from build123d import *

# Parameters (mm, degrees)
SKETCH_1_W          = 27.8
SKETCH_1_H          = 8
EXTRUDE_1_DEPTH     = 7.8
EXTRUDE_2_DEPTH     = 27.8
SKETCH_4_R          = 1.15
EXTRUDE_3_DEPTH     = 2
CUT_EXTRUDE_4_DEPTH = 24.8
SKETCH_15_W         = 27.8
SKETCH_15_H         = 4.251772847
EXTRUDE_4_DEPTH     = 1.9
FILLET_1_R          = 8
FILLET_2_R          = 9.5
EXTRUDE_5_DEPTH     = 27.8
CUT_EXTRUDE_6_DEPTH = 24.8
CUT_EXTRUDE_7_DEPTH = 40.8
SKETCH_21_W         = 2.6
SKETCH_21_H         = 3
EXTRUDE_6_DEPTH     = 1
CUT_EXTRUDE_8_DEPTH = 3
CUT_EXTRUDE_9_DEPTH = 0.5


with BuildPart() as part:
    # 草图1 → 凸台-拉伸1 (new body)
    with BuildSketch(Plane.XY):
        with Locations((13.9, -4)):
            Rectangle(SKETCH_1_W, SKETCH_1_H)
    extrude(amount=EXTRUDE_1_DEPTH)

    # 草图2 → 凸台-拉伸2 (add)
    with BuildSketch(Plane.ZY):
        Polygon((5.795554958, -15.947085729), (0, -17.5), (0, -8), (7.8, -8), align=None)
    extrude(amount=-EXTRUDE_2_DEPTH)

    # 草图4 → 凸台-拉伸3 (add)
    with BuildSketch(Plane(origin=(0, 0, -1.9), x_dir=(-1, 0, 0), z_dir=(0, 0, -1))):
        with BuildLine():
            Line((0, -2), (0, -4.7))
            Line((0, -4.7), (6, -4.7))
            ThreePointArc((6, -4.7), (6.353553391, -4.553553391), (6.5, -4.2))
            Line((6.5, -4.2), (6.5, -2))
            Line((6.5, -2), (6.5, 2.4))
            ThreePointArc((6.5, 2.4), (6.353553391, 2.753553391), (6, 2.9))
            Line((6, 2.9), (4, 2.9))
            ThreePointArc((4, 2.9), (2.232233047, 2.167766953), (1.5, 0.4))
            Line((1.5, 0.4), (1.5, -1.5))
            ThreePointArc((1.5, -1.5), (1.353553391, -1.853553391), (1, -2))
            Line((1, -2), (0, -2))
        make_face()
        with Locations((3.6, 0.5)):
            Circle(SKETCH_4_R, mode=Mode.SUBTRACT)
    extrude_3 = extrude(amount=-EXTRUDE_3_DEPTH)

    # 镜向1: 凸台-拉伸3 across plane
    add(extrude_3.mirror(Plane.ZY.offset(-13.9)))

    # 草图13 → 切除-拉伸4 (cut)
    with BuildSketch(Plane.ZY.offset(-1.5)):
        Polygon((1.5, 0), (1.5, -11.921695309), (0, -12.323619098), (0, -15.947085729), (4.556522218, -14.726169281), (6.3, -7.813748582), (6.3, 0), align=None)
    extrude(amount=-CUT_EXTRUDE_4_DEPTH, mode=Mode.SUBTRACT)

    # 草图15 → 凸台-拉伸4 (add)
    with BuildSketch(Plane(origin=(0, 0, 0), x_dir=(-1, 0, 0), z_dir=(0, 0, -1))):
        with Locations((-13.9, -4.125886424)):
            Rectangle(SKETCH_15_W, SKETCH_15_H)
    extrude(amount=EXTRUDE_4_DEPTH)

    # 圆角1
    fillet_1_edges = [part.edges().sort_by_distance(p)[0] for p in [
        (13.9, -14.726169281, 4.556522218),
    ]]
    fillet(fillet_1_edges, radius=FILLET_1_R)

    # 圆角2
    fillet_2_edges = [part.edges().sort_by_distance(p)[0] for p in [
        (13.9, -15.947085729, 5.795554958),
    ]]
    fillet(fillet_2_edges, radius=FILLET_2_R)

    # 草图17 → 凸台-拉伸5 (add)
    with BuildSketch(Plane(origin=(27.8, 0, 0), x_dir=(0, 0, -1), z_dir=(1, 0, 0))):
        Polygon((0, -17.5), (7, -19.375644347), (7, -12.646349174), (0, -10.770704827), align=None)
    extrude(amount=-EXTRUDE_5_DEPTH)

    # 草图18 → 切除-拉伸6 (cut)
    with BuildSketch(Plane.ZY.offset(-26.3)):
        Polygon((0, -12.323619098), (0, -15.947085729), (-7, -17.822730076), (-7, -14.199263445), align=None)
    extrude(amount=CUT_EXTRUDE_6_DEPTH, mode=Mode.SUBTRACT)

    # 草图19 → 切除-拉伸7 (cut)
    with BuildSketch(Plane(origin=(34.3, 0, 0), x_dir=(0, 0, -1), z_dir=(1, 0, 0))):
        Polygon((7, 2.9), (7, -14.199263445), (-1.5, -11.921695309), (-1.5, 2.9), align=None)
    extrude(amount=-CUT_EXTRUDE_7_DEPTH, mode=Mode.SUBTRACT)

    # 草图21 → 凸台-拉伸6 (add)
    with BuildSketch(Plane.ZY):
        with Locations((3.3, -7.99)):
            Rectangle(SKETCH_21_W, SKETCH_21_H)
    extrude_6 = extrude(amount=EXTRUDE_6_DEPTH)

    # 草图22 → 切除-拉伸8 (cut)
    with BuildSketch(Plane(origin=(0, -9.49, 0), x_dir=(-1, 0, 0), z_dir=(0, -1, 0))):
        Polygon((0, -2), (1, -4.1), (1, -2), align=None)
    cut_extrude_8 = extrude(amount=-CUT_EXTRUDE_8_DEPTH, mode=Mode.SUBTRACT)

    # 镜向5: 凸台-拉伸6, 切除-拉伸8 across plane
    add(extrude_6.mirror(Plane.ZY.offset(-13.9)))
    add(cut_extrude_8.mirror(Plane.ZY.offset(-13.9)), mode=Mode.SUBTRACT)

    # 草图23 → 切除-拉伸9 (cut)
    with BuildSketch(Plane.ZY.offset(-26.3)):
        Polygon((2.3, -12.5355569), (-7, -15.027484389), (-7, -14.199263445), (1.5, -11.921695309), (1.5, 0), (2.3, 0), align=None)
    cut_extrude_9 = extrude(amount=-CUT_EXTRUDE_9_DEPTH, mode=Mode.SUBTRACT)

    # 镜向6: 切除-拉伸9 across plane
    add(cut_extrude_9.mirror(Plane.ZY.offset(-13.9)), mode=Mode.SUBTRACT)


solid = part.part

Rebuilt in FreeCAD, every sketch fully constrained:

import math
import FreeCAD as App
import Part
import Sketcher
Q = App.Units.Quantity


def edges_at(feature, points):
    """Names of the edges that pass closest to the given points."""
    edges = feature.Shape.Edges
    near = lambda p: min(range(len(edges)), key=lambda i: edges[i].distToShape(Part.Vertex(*p))[0])
    return sorted({f"Edge{near(p) + 1}" for p in points})

doc = App.newDocument("Part")
body = doc.addObject("PartDesign::Body", "Body")

# Sketch on XY plane
sketch1 = body.newObject("Sketcher::SketchObject", "Sketch")
sketch1.AttachmentSupport = (doc.getObject("XY_Plane"), [""])
sketch1.MapMode = "FlatFace"
sketch1.addGeometry([
    Part.LineSegment(App.Vector(0, 0, 0), App.Vector(0, -8, 0)),
    Part.LineSegment(App.Vector(0, -8, 0), App.Vector(27.8, -8, 0)),
    Part.LineSegment(App.Vector(27.8, -8, 0), App.Vector(27.8, 0, 0)),
    Part.LineSegment(App.Vector(27.8, 0, 0), App.Vector(0, 0, 0)),
], False)
sketch1.addConstraint([
    Sketcher.Constraint("Coincident", 0, 2, 1, 1),
    Sketcher.Constraint("Coincident", 1, 2, 2, 1),
    Sketcher.Constraint("Coincident", 2, 2, 3, 1),
    Sketcher.Constraint("Coincident", 3, 2, 0, 1),
    Sketcher.Constraint("Vertical", 0),
    Sketcher.Constraint("Horizontal", 1),
    Sketcher.Constraint("Vertical", 2),
    Sketcher.Constraint("Horizontal", 3),
    Sketcher.Constraint("Coincident", 3, 2, -1, 1),
    Sketcher.Constraint("DistanceY", 0, 2, 0, 1, Q("8 mm")),
    Sketcher.Constraint("DistanceX", 1, 1, 1, 2, Q("27.8 mm")),
])
pad1 = body.newObject("PartDesign::Pad", "Pad")
pad1.Profile = sketch1
pad1.Length = 7.8

# Sketch on YZ plane
sketch2 = body.newObject("Sketcher::SketchObject", "Sketch001")
sketch2.AttachmentSupport = (doc.getObject("YZ_Plane"), [""])
sketch2.MapMode = "FlatFace"
sketch2.addGeometry([
    Part.LineSegment(App.Vector(-17.5, 0, 0), App.Vector(-15.947086, 5.795555, 0)),
    Part.LineSegment(App.Vector(-15.947086, 5.795555, 0), App.Vector(-8, 7.8, 0)),
    Part.LineSegment(App.Vector(-8, 7.8, 0), App.Vector(-8, 0, 0)),
    Part.LineSegment(App.Vector(-8, 0, 0), App.Vector(-17.5, 0, 0)),
], False)
sketch2.addConstraint([
    Sketcher.Constraint("Coincident", 0, 2, 1, 1),
    Sketcher.Constraint("Coincident", 1, 2, 2, 1),
    Sketcher.Constraint("Coincident", 2, 2, 3, 1),
    Sketcher.Constraint("Coincident", 3, 2, 0, 1),
    Sketcher.Constraint("Vertical", 2),
    Sketcher.Constraint("Horizontal", 3),
    Sketcher.Constraint("PointOnObject", 2, 2, -1),
    Sketcher.Constraint("Angle", 0, Q("75 deg")),
    Sketcher.Constraint("Distance", 0, Q("6 mm")),
    Sketcher.Constraint("DistanceX", 3, 2, 3, 1, Q("9.5 mm")),
    Sketcher.Constraint("DistanceY", 2, 2, 2, 1, Q("7.8 mm")),
    Sketcher.Constraint("DistanceX", 1, 2, -1, 1, Q("8 mm")),
])
pad2 = body.newObject("PartDesign::Pad", "Pad001")
pad2.Profile = sketch2
pad2.Length = 27.8

# Sketch on XY plane
sketch3 = body.newObject("Sketcher::SketchObject", "Sketch002")
sketch3.AttachmentSupport = (doc.getObject("XY_Plane"), [""])
sketch3.MapMode = "FlatFace"
sketch3.AttachmentOffset = App.Placement(App.Vector(0, 0, -1.9), App.Rotation())
sketch3.addGeometry([
    Part.LineSegment(App.Vector(0, -2, 0), App.Vector(0, -4.7, 0)),  # 0
    Part.LineSegment(App.Vector(0, -4.7, 0), App.Vector(-6, -4.7, 0)),  # 1
    Part.ArcOfCircle(Part.Circle(App.Vector(-6, -4.2, 0), App.Vector(0, 0, 1), 0.5), math.radians(180), math.radians(270)),  # 2
    Part.LineSegment(App.Vector(-6.5, -4.2, 0), App.Vector(-6.5, 2.4, 0)),  # 3
    Part.ArcOfCircle(Part.Circle(App.Vector(-6, 2.4, 0), App.Vector(0, 0, 1), 0.5), math.radians(90), math.radians(180)),  # 4
    Part.LineSegment(App.Vector(-6, 2.9, 0), App.Vector(-4, 2.9, 0)),  # 5
    Part.ArcOfCircle(Part.Circle(App.Vector(-4, 0.4, 0), App.Vector(0, 0, 1), 2.5), math.radians(0), math.radians(90)),  # 6
    Part.LineSegment(App.Vector(-1.5, 0.4, 0), App.Vector(-1.5, -1.5, 0)),  # 7
    Part.ArcOfCircle(Part.Circle(App.Vector(-1, -1.5, 0), App.Vector(0, 0, 1), 0.5), math.radians(180), math.radians(270)),  # 8
    Part.LineSegment(App.Vector(-1, -2, 0), App.Vector(0, -2, 0)),  # 9
    Part.Circle(App.Vector(-3.6, 0.5, 0), App.Vector(0, 0, 1), 1.15),  # 10
], False)
sketch3.addConstraint([
    Sketcher.Constraint("Coincident", 0, 2, 1, 1),
    Sketcher.Constraint("Tangent", 1, 2, 2, 2),
    Sketcher.Constraint("Tangent", 2, 1, 3, 1),
    Sketcher.Constraint("Tangent", 3, 2, 4, 2),
    Sketcher.Constraint("Tangent", 4, 1, 5, 1),
    Sketcher.Constraint("Tangent", 5, 2, 6, 2),
    Sketcher.Constraint("Tangent", 6, 1, 7, 1),
    Sketcher.Constraint("Tangent", 7, 2, 8, 1),
    Sketcher.Constraint("Tangent", 8, 2, 9, 1),
    Sketcher.Constraint("Coincident", 9, 2, 0, 1),
    Sketcher.Constraint("Vertical", 0),
    Sketcher.Constraint("Horizontal", 1),
    Sketcher.Constraint("Vertical", 3),
    Sketcher.Constraint("Horizontal", 5),
    Sketcher.Constraint("Vertical", 7),
    Sketcher.Constraint("Horizontal", 9),
    Sketcher.Constraint("Equal", 2, 4),
    Sketcher.Constraint("Equal", 4, 8),
    Sketcher.Constraint("PointOnObject", 0, 2, -2),
    Sketcher.Constraint("Diameter", 10, Q("2.3 mm")),
    Sketcher.Constraint("Radius", 2, Q("0.5 mm")),
    Sketcher.Constraint("Radius", 6, Q("2.5 mm")),
    Sketcher.Constraint("DistanceX", 1, 2, 1, 1, Q("6 mm")),
    Sketcher.Constraint("DistanceX", 5, 1, 5, 2, Q("2 mm")),
    Sketcher.Constraint("DistanceY", 0, 2, 0, 1, Q("2.7 mm")),
    Sketcher.Constraint("DistanceY", 3, 1, 3, 2, Q("6.6 mm")),
    Sketcher.Constraint("DistanceY", 8, 2, -1, 1, Q("2 mm")),
    Sketcher.Constraint("DistanceY", 8, 3, 10, 3, Q("2 mm")),
    Sketcher.Constraint("DistanceX", 10, 3, -1, 1, Q("3.6 mm")),
])
pad3 = body.newObject("PartDesign::Pad", "Pad002")
pad3.Profile = sketch3
pad3.Length = 2
doc.recompute()

datumplane = body.newObject("PartDesign::Plane", "DatumPlane")
datumplane.AttachmentSupport = (doc.getObject("YZ_Plane"), [""])
datumplane.MapMode = "FlatFace"
datumplane.AttachmentOffset = App.Placement(App.Vector(0, 0, 13.9), App.Rotation())
mirrored = body.newObject("PartDesign::Mirrored", "Mirrored")
mirrored.Originals = [pad3]
mirrored.MirrorPlane = (datumplane, [""])
body.Tip = mirrored

# Sketch on YZ plane
sketch4 = body.newObject("Sketcher::SketchObject", "Sketch003")
sketch4.AttachmentSupport = (doc.getObject("YZ_Plane"), [""])
sketch4.MapMode = "FlatFace"
sketch4.AttachmentOffset = App.Placement(App.Vector(0, 0, 1.5), App.Rotation())
sketch4.addGeometry([
    Part.LineSegment(App.Vector(0, 1.5, 0), App.Vector(-11.921695, 1.5, 0)),  # 0
    Part.LineSegment(App.Vector(-11.921695, 1.5, 0), App.Vector(-12.323619, 0, 0)),  # 1
    Part.LineSegment(App.Vector(-12.323619, 0, 0), App.Vector(-15.947086, 0, 0)),  # 2
    Part.LineSegment(App.Vector(-15.947086, 0, 0), App.Vector(-14.726169, 4.556522, 0)),  # 3
    Part.LineSegment(App.Vector(-14.726169, 4.556522, 0), App.Vector(-7.813749, 6.3, 0)),  # 4
    Part.LineSegment(App.Vector(-7.813749, 6.3, 0), App.Vector(0, 6.3, 0)),  # 5
    Part.LineSegment(App.Vector(0, 6.3, 0), App.Vector(0, 1.5, 0)),  # 6
], False)
sketch4.addConstraint([
    Sketcher.Constraint("Coincident", 0, 2, 1, 1),
    Sketcher.Constraint("Coincident", 1, 2, 2, 1),
    Sketcher.Constraint("Coincident", 2, 2, 3, 1),
    Sketcher.Constraint("Coincident", 3, 2, 4, 1),
    Sketcher.Constraint("Coincident", 4, 2, 5, 1),
    Sketcher.Constraint("Coincident", 5, 2, 6, 1),
    Sketcher.Constraint("Coincident", 6, 2, 0, 1),
    Sketcher.Constraint("Horizontal", 0),
    Sketcher.Constraint("Horizontal", 2),
    Sketcher.Constraint("Horizontal", 5),
    Sketcher.Constraint("Vertical", 6),
    Sketcher.Constraint("PointOnObject", 1, 2, -1),
    Sketcher.Constraint("PointOnObject", 5, 2, -2),
    Sketcher.Constraint("Parallel", 1, 3),
    Sketcher.Constraint("Angle", 1, Q("-105 deg")),
    Sketcher.Constraint("DistanceY", 6, 2, 6, 1, Q("4.8 mm")),
    Sketcher.Constraint("DistanceY", -1, 1, 0, 2, Q("1.5 mm")),
    Sketcher.Constraint("DistanceX", 5, 1, 5, 2, Q("7.813749 mm")),
    Sketcher.Constraint("Distance", 3, Q("4.717259 mm")),
    Sketcher.Constraint("DistanceX", 0, 2, 0, 1, Q("11.921695 mm")),
    Sketcher.Constraint("DistanceX", 2, 2, 2, 1, Q("3.623467 mm")),
])
pocket1 = body.newObject("PartDesign::Pocket", "Pocket")
pocket1.Profile = sketch4
pocket1.Length = 24.8
pocket1.Reversed = True

# Sketch on XY plane
sketch5 = body.newObject("Sketcher::SketchObject", "Sketch004")
sketch5.AttachmentSupport = (doc.getObject("XY_Plane"), [""])
sketch5.MapMode = "FlatFace"
sketch5.addGeometry([
    Part.LineSegment(App.Vector(27.8, -2, 0), App.Vector(27.8, -6.251773, 0)),
    Part.LineSegment(App.Vector(27.8, -6.251773, 0), App.Vector(0, -6.251773, 0)),
    Part.LineSegment(App.Vector(0, -6.251773, 0), App.Vector(0, -2, 0)),
    Part.LineSegment(App.Vector(0, -2, 0), App.Vector(27.8, -2, 0)),
], False)
sketch5.addConstraint([
    Sketcher.Constraint("Coincident", 0, 2, 1, 1),
    Sketcher.Constraint("Coincident", 1, 2, 2, 1),
    Sketcher.Constraint("Coincident", 2, 2, 3, 1),
    Sketcher.Constraint("Coincident", 3, 2, 0, 1),
    Sketcher.Constraint("Vertical", 0),
    Sketcher.Constraint("Horizontal", 1),
    Sketcher.Constraint("Vertical", 2),
    Sketcher.Constraint("Horizontal", 3),
    Sketcher.Constraint("PointOnObject", 1, 2, -2),
    Sketcher.Constraint("DistanceX", 1, 2, 1, 1, Q("27.8 mm")),
    Sketcher.Constraint("DistanceY", 2, 2, -1, 1, Q("2 mm")),
    Sketcher.Constraint("DistanceY", 0, 2, 0, 1, Q("4.251773 mm")),
])
pad4 = body.newObject("PartDesign::Pad", "Pad003")
pad4.Profile = sketch5
pad4.Length = 1.9
pad4.Reversed = True
doc.recompute()

fillet = body.newObject("PartDesign::Fillet", "Fillet")
fillet.Base = (pad4, edges_at(pad4, [(13.9, -14.726, 4.557)]))
fillet.Radius = 8
doc.recompute()

fillet2 = body.newObject("PartDesign::Fillet", "Fillet001")
fillet2.Base = (fillet, edges_at(fillet, [(13.9, -15.947, 5.796)]))
fillet2.Radius = 9.5

# Sketch on YZ plane
sketch6 = body.newObject("Sketcher::SketchObject", "Sketch005")
sketch6.AttachmentSupport = (doc.getObject("YZ_Plane"), [""])
sketch6.MapMode = "FlatFace"
sketch6.AttachmentOffset = App.Placement(App.Vector(0, 0, 27.8), App.Rotation())
sketch6.addGeometry([
    Part.LineSegment(App.Vector(-17.5, 0, 0), App.Vector(-19.375644, -7, 0)),
    Part.LineSegment(App.Vector(-19.375644, -7, 0), App.Vector(-12.646349, -7, 0)),
    Part.LineSegment(App.Vector(-12.646349, -7, 0), App.Vector(-10.770705, 0, 0)),
    Part.LineSegment(App.Vector(-10.770705, 0, 0), App.Vector(-17.5, 0, 0)),
], False)
sketch6.addConstraint([
    Sketcher.Constraint("Coincident", 0, 2, 1, 1),
    Sketcher.Constraint("Coincident", 1, 2, 2, 1),
    Sketcher.Constraint("Coincident", 2, 2, 3, 1),
    Sketcher.Constraint("Coincident", 3, 2, 0, 1),
    Sketcher.Constraint("Horizontal", 1),
    Sketcher.Constraint("Horizontal", 3),
    Sketcher.Constraint("PointOnObject", 2, 2, -1),
    Sketcher.Constraint("Parallel", 0, 2),
    Sketcher.Constraint("Angle", 0, Q("-105 deg")),
    Sketcher.Constraint("DistanceY", 0, 2, -1, 1, Q("7 mm")),
    Sketcher.Constraint("DistanceX", 3, 2, -1, 1, Q("17.5 mm")),
    Sketcher.Constraint("DistanceX", 1, 1, 1, 2, Q("6.729295 mm")),
])
pad5 = body.newObject("PartDesign::Pad", "Pad004")
pad5.Profile = sketch6
pad5.Length = 27.8
pad5.Reversed = True

# Sketch on YZ plane
sketch7 = body.newObject("Sketcher::SketchObject", "Sketch006")
sketch7.AttachmentSupport = (doc.getObject("YZ_Plane"), [""])
sketch7.MapMode = "FlatFace"
sketch7.AttachmentOffset = App.Placement(App.Vector(0, 0, 26.3), App.Rotation())
sketch7.addGeometry([
    Part.LineSegment(App.Vector(-15.947086, 0, 0), App.Vector(-12.323619, 0, 0)),
    Part.LineSegment(App.Vector(-12.323619, 0, 0), App.Vector(-14.199263, -7, 0)),
    Part.LineSegment(App.Vector(-14.199263, -7, 0), App.Vector(-17.82273, -7, 0)),
    Part.LineSegment(App.Vector(-17.82273, -7, 0), App.Vector(-15.947086, 0, 0)),
], False)
sketch7.addConstraint([
    Sketcher.Constraint("Coincident", 0, 2, 1, 1),
    Sketcher.Constraint("Coincident", 1, 2, 2, 1),
    Sketcher.Constraint("Coincident", 2, 2, 3, 1),
    Sketcher.Constraint("Coincident", 3, 2, 0, 1),
    Sketcher.Constraint("Horizontal", 0),
    Sketcher.Constraint("Horizontal", 2),
    Sketcher.Constraint("PointOnObject", 0, 2, -1),
    Sketcher.Constraint("Parallel", 1, 3),
    Sketcher.Constraint("Angle", 1, Q("-105 deg")),
    Sketcher.Constraint("DistanceY", 1, 2, -1, 1, Q("7 mm")),
    Sketcher.Constraint("DistanceX", 0, 1, 0, 2, Q("3.623467 mm")),
    Sketcher.Constraint("DistanceX", 0, 2, -1, 1, Q("12.323619 mm")),
])
pocket2 = body.newObject("PartDesign::Pocket", "Pocket001")
pocket2.Profile = sketch7
pocket2.Length = 24.8

# Sketch on YZ plane
sketch8 = body.newObject("Sketcher::SketchObject", "Sketch007")
sketch8.AttachmentSupport = (doc.getObject("YZ_Plane"), [""])
sketch8.MapMode = "FlatFace"
sketch8.AttachmentOffset = App.Placement(App.Vector(0, 0, 34.3), App.Rotation())
sketch8.addGeometry([
    Part.LineSegment(App.Vector(-14.199263, -7, 0), App.Vector(2.9, -7, 0)),
    Part.LineSegment(App.Vector(2.9, -7, 0), App.Vector(2.9, 1.5, 0)),
    Part.LineSegment(App.Vector(2.9, 1.5, 0), App.Vector(-11.921695, 1.5, 0)),
    Part.LineSegment(App.Vector(-11.921695, 1.5, 0), App.Vector(-14.199263, -7, 0)),
], False)
sketch8.addConstraint([
    Sketcher.Constraint("Coincident", 0, 2, 1, 1),
    Sketcher.Constraint("Coincident", 1, 2, 2, 1),
    Sketcher.Constraint("Coincident", 2, 2, 3, 1),
    Sketcher.Constraint("Coincident", 3, 2, 0, 1),
    Sketcher.Constraint("Horizontal", 0),
    Sketcher.Constraint("Vertical", 1),
    Sketcher.Constraint("Horizontal", 2),
    Sketcher.Constraint("Angle", 3, Q("-105 deg")),
    Sketcher.Constraint("DistanceY", 1, 1, 1, 2, Q("8.5 mm")),
    Sketcher.Constraint("DistanceY", 0, 2, -1, 1, Q("7 mm")),
    Sketcher.Constraint("DistanceX", -1, 1, 0, 2, Q("2.9 mm")),
    Sketcher.Constraint("DistanceX", 0, 1, 0, 2, Q("17.099263 mm")),
])
pocket3 = body.newObject("PartDesign::Pocket", "Pocket002")
pocket3.Profile = sketch8
pocket3.Length = 40.8

# Sketch on YZ plane
sketch9 = body.newObject("Sketcher::SketchObject", "Sketch008")
sketch9.AttachmentSupport = (doc.getObject("YZ_Plane"), [""])
sketch9.MapMode = "FlatFace"
sketch9.addGeometry([
    Part.LineSegment(App.Vector(-6.49, 2, 0), App.Vector(-9.49, 2, 0)),
    Part.LineSegment(App.Vector(-9.49, 2, 0), App.Vector(-9.49, 4.6, 0)),
    Part.LineSegment(App.Vector(-9.49, 4.6, 0), App.Vector(-6.49, 4.6, 0)),
    Part.LineSegment(App.Vector(-6.49, 4.6, 0), App.Vector(-6.49, 2, 0)),
], False)
sketch9.addConstraint([
    Sketcher.Constraint("Coincident", 0, 2, 1, 1),
    Sketcher.Constraint("Coincident", 1, 2, 2, 1),
    Sketcher.Constraint("Coincident", 2, 2, 3, 1),
    Sketcher.Constraint("Coincident", 3, 2, 0, 1),
    Sketcher.Constraint("Horizontal", 0),
    Sketcher.Constraint("Vertical", 1),
    Sketcher.Constraint("Horizontal", 2),
    Sketcher.Constraint("Vertical", 3),
    Sketcher.Constraint("DistanceX", 0, 2, 0, 1, Q("3 mm")),
    Sketcher.Constraint("DistanceY", 1, 1, 1, 2, Q("2.6 mm")),
    Sketcher.Constraint("DistanceY", -1, 1, 0, 2, Q("2 mm")),
    Sketcher.Constraint("DistanceX", 0, 2, -1, 1, Q("9.49 mm")),
])
pad6 = body.newObject("PartDesign::Pad", "Pad005")
pad6.Profile = sketch9
pad6.Length = 1
pad6.Reversed = True

# Sketch on XZ plane
sketch10 = body.newObject("Sketcher::SketchObject", "Sketch009")
sketch10.AttachmentSupport = (doc.getObject("XZ_Plane"), [""])
sketch10.MapMode = "FlatFace"
sketch10.AttachmentOffset = App.Placement(App.Vector(0, 0, 9.49), App.Rotation())
sketch10.addGeometry([
    Part.LineSegment(App.Vector(0, 2, 0), App.Vector(-1, 4.1, 0)),
    Part.LineSegment(App.Vector(-1, 4.1, 0), App.Vector(-1, 2, 0)),
    Part.LineSegment(App.Vector(-1, 2, 0), App.Vector(0, 2, 0)),
], False)
sketch10.addConstraint([
    Sketcher.Constraint("Coincident", 0, 2, 1, 1),
    Sketcher.Constraint("Coincident", 1, 2, 2, 1),
    Sketcher.Constraint("Coincident", 2, 2, 0, 1),
    Sketcher.Constraint("Vertical", 1),
    Sketcher.Constraint("Horizontal", 2),
    Sketcher.Constraint("PointOnObject", 2, 2, -2),
    Sketcher.Constraint("DistanceX", 2, 1, 2, 2, Q("1 mm")),
    Sketcher.Constraint("DistanceY", 1, 2, 1, 1, Q("2.1 mm")),
    Sketcher.Constraint("DistanceY", -1, 1, 1, 2, Q("2 mm")),
])
pocket4 = body.newObject("PartDesign::Pocket", "Pocket003")
pocket4.Profile = sketch10
pocket4.Length = 3
doc.recompute()

datumplane2 = body.newObject("PartDesign::Plane", "DatumPlane001")
datumplane2.AttachmentSupport = (doc.getObject("YZ_Plane"), [""])
datumplane2.MapMode = "FlatFace"
datumplane2.AttachmentOffset = App.Placement(App.Vector(0, 0, 13.9), App.Rotation())
mirrored2 = body.newObject("PartDesign::Mirrored", "Mirrored001")
mirrored2.Originals = [pad6, pocket4]
mirrored2.MirrorPlane = (datumplane2, [""])
body.Tip = mirrored2

# Sketch on YZ plane
sketch11 = body.newObject("Sketcher::SketchObject", "Sketch010")
sketch11.AttachmentSupport = (doc.getObject("YZ_Plane"), [""])
sketch11.MapMode = "FlatFace"
sketch11.AttachmentOffset = App.Placement(App.Vector(0, 0, 26.3), App.Rotation())
sketch11.addGeometry([
    Part.LineSegment(App.Vector(-15.027484, -7, 0), App.Vector(-12.535557, 2.3, 0)),  # 0
    Part.LineSegment(App.Vector(-12.535557, 2.3, 0), App.Vector(0, 2.3, 0)),  # 1
    Part.LineSegment(App.Vector(0, 2.3, 0), App.Vector(0, 1.5, 0)),  # 2
    Part.LineSegment(App.Vector(0, 1.5, 0), App.Vector(-11.921695, 1.5, 0)),  # 3
    Part.LineSegment(App.Vector(-11.921695, 1.5, 0), App.Vector(-14.199263, -7, 0)),  # 4
    Part.LineSegment(App.Vector(-14.199263, -7, 0), App.Vector(-15.027484, -7, 0)),  # 5
], False)
sketch11.addConstraint([
    Sketcher.Constraint("Coincident", 0, 2, 1, 1),
    Sketcher.Constraint("Coincident", 1, 2, 2, 1),
    Sketcher.Constraint("Coincident", 2, 2, 3, 1),
    Sketcher.Constraint("Coincident", 3, 2, 4, 1),
    Sketcher.Constraint("Coincident", 4, 2, 5, 1),
    Sketcher.Constraint("Coincident", 5, 2, 0, 1),
    Sketcher.Constraint("Horizontal", 1),
    Sketcher.Constraint("Vertical", 2),
    Sketcher.Constraint("Horizontal", 3),
    Sketcher.Constraint("Horizontal", 5),
    Sketcher.Constraint("PointOnObject", 1, 2, -2),
    Sketcher.Constraint("Parallel", 0, 4),
    Sketcher.Constraint("Angle", 0, Q("75 deg")),
    Sketcher.Constraint("DistanceY", 2, 2, 2, 1, Q("0.8 mm")),
    Sketcher.Constraint("DistanceY", 4, 2, -1, 1, Q("7 mm")),
    Sketcher.Constraint("DistanceY", -1, 1, 0, 2, Q("2.3 mm")),
    Sketcher.Constraint("DistanceX", 5, 2, 5, 1, Q("0.828221 mm")),
    Sketcher.Constraint("DistanceX", 1, 1, 1, 2, Q("12.535557 mm")),
])
pocket5 = body.newObject("PartDesign::Pocket", "Pocket004")
pocket5.Profile = sketch11
pocket5.Length = 0.5
pocket5.Reversed = True
doc.recompute()

datumplane3 = body.newObject("PartDesign::Plane", "DatumPlane002")
datumplane3.AttachmentSupport = (doc.getObject("YZ_Plane"), [""])
datumplane3.MapMode = "FlatFace"
datumplane3.AttachmentOffset = App.Placement(App.Vector(0, 0, 13.9), App.Rotation())
mirrored3 = body.newObject("PartDesign::Mirrored", "Mirrored002")
mirrored3.Originals = [pocket5]
mirrored3.MirrorPlane = (datumplane3, [""])
body.Tip = mirrored3

doc.recompute()
